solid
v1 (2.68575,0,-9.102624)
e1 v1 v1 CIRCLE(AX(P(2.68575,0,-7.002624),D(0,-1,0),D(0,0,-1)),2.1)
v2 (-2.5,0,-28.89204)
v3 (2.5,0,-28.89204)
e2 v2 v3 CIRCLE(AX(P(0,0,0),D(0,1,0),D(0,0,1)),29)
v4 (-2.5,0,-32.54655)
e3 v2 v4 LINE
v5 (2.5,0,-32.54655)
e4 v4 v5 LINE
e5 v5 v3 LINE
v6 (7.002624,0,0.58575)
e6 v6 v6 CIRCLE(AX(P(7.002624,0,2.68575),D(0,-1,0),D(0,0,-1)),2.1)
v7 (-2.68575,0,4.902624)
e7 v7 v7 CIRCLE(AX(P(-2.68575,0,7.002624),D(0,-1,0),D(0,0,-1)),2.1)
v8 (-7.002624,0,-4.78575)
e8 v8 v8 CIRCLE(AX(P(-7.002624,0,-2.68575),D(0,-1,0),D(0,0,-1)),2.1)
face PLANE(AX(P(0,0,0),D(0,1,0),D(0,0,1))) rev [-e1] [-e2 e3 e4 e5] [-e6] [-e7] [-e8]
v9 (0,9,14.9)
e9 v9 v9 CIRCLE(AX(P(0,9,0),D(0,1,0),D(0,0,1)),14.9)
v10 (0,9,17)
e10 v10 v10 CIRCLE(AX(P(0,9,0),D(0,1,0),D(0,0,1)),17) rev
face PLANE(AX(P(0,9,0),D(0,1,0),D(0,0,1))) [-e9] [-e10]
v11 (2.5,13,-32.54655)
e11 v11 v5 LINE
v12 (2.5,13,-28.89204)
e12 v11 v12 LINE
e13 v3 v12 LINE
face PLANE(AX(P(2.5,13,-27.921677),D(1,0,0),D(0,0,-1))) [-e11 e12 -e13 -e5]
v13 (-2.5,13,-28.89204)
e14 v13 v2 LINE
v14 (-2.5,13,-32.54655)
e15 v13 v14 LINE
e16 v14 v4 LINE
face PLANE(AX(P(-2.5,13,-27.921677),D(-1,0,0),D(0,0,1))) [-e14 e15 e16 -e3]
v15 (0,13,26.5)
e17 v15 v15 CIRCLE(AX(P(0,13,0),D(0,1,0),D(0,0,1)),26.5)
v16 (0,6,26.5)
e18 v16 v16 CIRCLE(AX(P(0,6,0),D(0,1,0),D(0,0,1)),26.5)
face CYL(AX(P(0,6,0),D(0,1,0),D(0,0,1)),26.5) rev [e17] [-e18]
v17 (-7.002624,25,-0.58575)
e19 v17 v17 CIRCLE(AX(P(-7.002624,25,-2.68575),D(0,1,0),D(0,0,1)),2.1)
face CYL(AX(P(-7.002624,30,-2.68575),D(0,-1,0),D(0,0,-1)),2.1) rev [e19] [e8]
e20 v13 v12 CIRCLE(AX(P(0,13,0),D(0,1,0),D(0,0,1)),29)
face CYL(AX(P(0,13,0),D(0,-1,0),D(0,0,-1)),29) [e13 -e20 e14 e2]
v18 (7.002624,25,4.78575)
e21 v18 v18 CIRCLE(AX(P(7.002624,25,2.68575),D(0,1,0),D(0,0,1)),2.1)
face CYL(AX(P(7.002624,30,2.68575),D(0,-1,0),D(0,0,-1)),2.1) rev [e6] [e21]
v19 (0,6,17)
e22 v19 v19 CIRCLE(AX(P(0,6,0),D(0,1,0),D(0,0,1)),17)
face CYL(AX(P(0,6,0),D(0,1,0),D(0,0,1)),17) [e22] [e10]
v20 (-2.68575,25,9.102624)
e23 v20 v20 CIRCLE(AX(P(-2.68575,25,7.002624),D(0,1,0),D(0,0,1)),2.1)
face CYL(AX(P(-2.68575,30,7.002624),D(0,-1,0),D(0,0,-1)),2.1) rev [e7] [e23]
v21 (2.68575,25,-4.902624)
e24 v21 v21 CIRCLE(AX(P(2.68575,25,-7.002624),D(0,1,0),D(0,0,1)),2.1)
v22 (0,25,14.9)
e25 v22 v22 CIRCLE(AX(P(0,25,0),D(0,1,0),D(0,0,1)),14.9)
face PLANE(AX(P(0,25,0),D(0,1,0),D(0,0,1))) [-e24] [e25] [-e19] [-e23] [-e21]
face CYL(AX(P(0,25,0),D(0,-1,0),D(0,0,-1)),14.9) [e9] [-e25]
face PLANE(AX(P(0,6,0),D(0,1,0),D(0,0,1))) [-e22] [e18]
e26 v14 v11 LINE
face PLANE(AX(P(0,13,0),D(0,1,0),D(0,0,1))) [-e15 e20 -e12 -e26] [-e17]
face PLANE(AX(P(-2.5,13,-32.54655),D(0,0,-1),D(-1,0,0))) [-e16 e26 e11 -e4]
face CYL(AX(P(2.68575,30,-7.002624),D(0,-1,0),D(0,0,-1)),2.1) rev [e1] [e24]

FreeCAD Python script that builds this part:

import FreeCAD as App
import Part
import Sketcher

V = App.Vector
Q = App.Units.Quantity

doc = App.newDocument("Part")
params = doc.addObject("Spreadsheet::Sheet", "Params")
for row, (alias, value) in enumerate([
    ("sketch1_diameter", "58 mm"),
    ("pad1_length", "13 mm"),
    ("sketch2_diameter", "53 mm"),
    ("sketch2_diameter2", "34 mm"),
    ("pocket1_length", "7 mm"),
    ("sketch3_diameter", "34.5 mm"),
    ("pocket2_length", "4 mm"),
    ("sketch4_width", "5 mm"),
    ("pad2_length", "13 mm"),
    ("sketch5_diameter", "29.8 mm"),
    ("pad3_length", "16 mm"),
    ("sketch6_diameter", "4.2 mm"),
    ("pocket3_length", "30 mm"),
], start=1):
    params.set(f"A{row}", alias)
    params.set(f"B{row}", "=" + value)
    params.setAlias(f"B{row}", alias)

body = doc.addObject("PartDesign::Body", "Body")

sketch1 = body.newObject("Sketcher::SketchObject", "Sketch")
sketch1.AttachmentSupport = (doc.getObject("XZ_Plane"), [""])
sketch1.MapMode = "FlatFace"
sketch1.addGeometry(Part.Circle(V(0, 0, 0), V(0, 0, 1), 29), False)
sketch1.addConstraint([
    Sketcher.Constraint("Coincident", 0, 3, -1, 1),
    Sketcher.Constraint("Diameter", 0, Q("58 mm")),
])
sketch1.setExpression("Constraints[1]", "Params.sketch1_diameter")
pad1 = body.newObject("PartDesign::Pad", "Pad")
pad1.Profile = sketch1
pad1.setExpression("Length", "Params.pad1_length")
pad1.Reversed = True

sketch2 = body.newObject("Sketcher::SketchObject", "Sketch001")
sketch2.AttachmentSupport = (doc.getObject("XZ_Plane"), [""])
sketch2.MapMode = "FlatFace"
sketch2.AttachmentOffset = App.Placement(V(0, 0, -13), App.Rotation())
sketch2.addGeometry([
    Part.Circle(V(0, 0, 0), V(0, 0, 1), 26.5),
    Part.Circle(V(0, 0, 0), V(0, 0, 1), 17),
], False)
sketch2.addConstraint([
    Sketcher.Constraint("Coincident", 0, 3, -1, 1),
    Sketcher.Constraint("Coincident", 1, 3, -1, 1),
    Sketcher.Constraint("Diameter", 0, Q("53 mm")),
    Sketcher.Constraint("Diameter", 1, Q("34 mm")),
])
sketch2.setExpression("Constraints[2]", "Params.sketch2_diameter")
sketch2.setExpression("Constraints[3]", "Params.sketch2_diameter2")
pocket1 = body.newObject("PartDesign::Pocket", "Pocket")
pocket1.Profile = sketch2
pocket1.setExpression("Length", "Params.pocket1_length")
pocket1.Reversed = True

sketch3 = body.newObject("Sketcher::SketchObject", "Sketch002")
sketch3.AttachmentSupport = (doc.getObject("XZ_Plane"), [""])
sketch3.MapMode = "FlatFace"
sketch3.AttachmentOffset = App.Placement(V(0, 0, -13), App.Rotation())
sketch3.addGeometry(Part.Circle(V(0, 0, 0), V(0, 0, 1), 17.25), False)
sketch3.addConstraint([
    Sketcher.Constraint("Coincident", 0, 3, -1, 1),
    Sketcher.Constraint("Diameter", 0, Q("34.5 mm")),
])
sketch3.setExpression("Constraints[1]", "Params.sketch3_diameter")
pocket2 = body.newObject("PartDesign::Pocket", "Pocket001")
pocket2.Profile = sketch3
pocket2.setExpression("Length", "Params.pocket2_length")
pocket2.Reversed = True

sketch4 = body.newObject("Sketcher::SketchObject", "Sketch003")
sketch4.AttachmentSupport = (doc.getObject("XZ_Plane"), [""])
sketch4.MapMode = "FlatFace"
sketch4.addGeometry([
    Part.LineSegment(V(-2.5, -27.921677, 0), V(-2.5, -32.54655, 0)),
    Part.LineSegment(V(-2.5, -32.54655, 0), V(2.5, -32.54655, 0)),
    Part.LineSegment(V(2.5, -32.54655, 0), V(2.5, -27.921677, 0)),
    Part.LineSegment(V(2.5, -27.921677, 0), V(-2.5, -27.921677, 0)),
], False)
sketch4.addConstraint([
    Sketcher.Constraint("Coincident", 0, 2, 1, 1),
    Sketcher.Constraint("Coincident", 1, 2, 2, 1),
    Sketcher.Constraint("Coincident", 2, 2, 3, 1),
    Sketcher.Constraint("Coincident", 3, 2, 0, 1),
    Sketcher.Constraint("Vertical", 0),
    Sketcher.Constraint("Horizontal", 1),
    Sketcher.Constraint("Vertical", 2),
    Sketcher.Constraint("Horizontal", 3),
    Sketcher.Constraint("DistanceX", 1, 1, 1, 2, Q("5 mm")),
    Sketcher.Constraint("DistanceX", 0, 2, -1, 1, Q("2.5 mm")),
    Sketcher.Constraint("DistanceY", 0, 2, 0, 1, Q("4.624873 mm")),
    Sketcher.Constraint("DistanceY", 0, 2, -1, 1, Q("32.54655 mm")),
])
sketch4.setExpression("Constraints[8]", "Params.sketch4_width")
pad2 = body.newObject("PartDesign::Pad", "Pad001")
pad2.Profile = sketch4
pad2.setExpression("Length", "Params.pad2_length")
pad2.Reversed = True

sketch5 = body.newObject("Sketcher::SketchObject", "Sketch004")
sketch5.AttachmentSupport = (doc.getObject("XZ_Plane"), [""])
sketch5.MapMode = "FlatFace"
sketch5.AttachmentOffset = App.Placement(V(0, 0, -9), App.Rotation())
sketch5.addGeometry(Part.Circle(V(0, 0, 0), V(0, 0, 1), 14.9), False)
sketch5.addConstraint([
    Sketcher.Constraint("Coincident", 0, 3, -1, 1),
    Sketcher.Constraint("Diameter", 0, Q("29.8 mm")),
])
sketch5.setExpression("Constraints[1]", "Params.sketch5_diameter")
pad3 = body.newObject("PartDesign::Pad", "Pad002")
pad3.Profile = sketch5
pad3.setExpression("Length", "Params.pad3_length")
pad3.Reversed = True

sketch6 = body.newObject("Sketcher::SketchObject", "Sketch005")
sketch6.AttachmentSupport = (doc.getObject("XZ_Plane"), [""])
sketch6.MapMode = "FlatFace"
sketch6.addGeometry([
    Part.Circle(V(7.002624, 2.68575, 0), V(0, 0, 1), 2.1),
    Part.Circle(V(-7.002624, -2.68575, 0), V(0, 0, 1), 2.1),
    Part.Circle(V(2.68575, -7.002624, 0), V(0, 0, 1), 2.1),
    Part.Circle(V(-2.68575, 7.002624, 0), V(0, 0, 1), 2.1),
], False)
sketch6.addConstraint([
    Sketcher.Constraint("Equal", 0, 1),
    Sketcher.Constraint("Equal", 1, 2),
    Sketcher.Constraint("Equal", 2, 3),
    Sketcher.Constraint("Symmetric", 0, 3, 1, 3, -1, 1),
    Sketcher.Constraint("Symmetric", 2, 3, 3, 3, -1, 1),
    Sketcher.Constraint("Diameter", 0, Q("4.2 mm")),
    Sketcher.Constraint("DistanceY", 1, 3, 0, 3, Q("5.3715 mm")),
    Sketcher.Constraint("DistanceX", 3, 3, 2, 3, Q("5.3715 mm")),
    Sketcher.Constraint("DistanceX", 1, 3, 0, 3, Q("14.005249 mm")),
    Sketcher.Constraint("DistanceY", 2, 3, 3, 3, Q("14.005249 mm")),
])
sketch6.setExpression("Constraints[5]", "Params.sketch6_diameter")
pocket3 = body.newObject("PartDesign::Pocket", "Pocket002")
pocket3.Profile = sketch6
pocket3.setExpression("Length", "Params.pocket3_length")

doc.recompute()
